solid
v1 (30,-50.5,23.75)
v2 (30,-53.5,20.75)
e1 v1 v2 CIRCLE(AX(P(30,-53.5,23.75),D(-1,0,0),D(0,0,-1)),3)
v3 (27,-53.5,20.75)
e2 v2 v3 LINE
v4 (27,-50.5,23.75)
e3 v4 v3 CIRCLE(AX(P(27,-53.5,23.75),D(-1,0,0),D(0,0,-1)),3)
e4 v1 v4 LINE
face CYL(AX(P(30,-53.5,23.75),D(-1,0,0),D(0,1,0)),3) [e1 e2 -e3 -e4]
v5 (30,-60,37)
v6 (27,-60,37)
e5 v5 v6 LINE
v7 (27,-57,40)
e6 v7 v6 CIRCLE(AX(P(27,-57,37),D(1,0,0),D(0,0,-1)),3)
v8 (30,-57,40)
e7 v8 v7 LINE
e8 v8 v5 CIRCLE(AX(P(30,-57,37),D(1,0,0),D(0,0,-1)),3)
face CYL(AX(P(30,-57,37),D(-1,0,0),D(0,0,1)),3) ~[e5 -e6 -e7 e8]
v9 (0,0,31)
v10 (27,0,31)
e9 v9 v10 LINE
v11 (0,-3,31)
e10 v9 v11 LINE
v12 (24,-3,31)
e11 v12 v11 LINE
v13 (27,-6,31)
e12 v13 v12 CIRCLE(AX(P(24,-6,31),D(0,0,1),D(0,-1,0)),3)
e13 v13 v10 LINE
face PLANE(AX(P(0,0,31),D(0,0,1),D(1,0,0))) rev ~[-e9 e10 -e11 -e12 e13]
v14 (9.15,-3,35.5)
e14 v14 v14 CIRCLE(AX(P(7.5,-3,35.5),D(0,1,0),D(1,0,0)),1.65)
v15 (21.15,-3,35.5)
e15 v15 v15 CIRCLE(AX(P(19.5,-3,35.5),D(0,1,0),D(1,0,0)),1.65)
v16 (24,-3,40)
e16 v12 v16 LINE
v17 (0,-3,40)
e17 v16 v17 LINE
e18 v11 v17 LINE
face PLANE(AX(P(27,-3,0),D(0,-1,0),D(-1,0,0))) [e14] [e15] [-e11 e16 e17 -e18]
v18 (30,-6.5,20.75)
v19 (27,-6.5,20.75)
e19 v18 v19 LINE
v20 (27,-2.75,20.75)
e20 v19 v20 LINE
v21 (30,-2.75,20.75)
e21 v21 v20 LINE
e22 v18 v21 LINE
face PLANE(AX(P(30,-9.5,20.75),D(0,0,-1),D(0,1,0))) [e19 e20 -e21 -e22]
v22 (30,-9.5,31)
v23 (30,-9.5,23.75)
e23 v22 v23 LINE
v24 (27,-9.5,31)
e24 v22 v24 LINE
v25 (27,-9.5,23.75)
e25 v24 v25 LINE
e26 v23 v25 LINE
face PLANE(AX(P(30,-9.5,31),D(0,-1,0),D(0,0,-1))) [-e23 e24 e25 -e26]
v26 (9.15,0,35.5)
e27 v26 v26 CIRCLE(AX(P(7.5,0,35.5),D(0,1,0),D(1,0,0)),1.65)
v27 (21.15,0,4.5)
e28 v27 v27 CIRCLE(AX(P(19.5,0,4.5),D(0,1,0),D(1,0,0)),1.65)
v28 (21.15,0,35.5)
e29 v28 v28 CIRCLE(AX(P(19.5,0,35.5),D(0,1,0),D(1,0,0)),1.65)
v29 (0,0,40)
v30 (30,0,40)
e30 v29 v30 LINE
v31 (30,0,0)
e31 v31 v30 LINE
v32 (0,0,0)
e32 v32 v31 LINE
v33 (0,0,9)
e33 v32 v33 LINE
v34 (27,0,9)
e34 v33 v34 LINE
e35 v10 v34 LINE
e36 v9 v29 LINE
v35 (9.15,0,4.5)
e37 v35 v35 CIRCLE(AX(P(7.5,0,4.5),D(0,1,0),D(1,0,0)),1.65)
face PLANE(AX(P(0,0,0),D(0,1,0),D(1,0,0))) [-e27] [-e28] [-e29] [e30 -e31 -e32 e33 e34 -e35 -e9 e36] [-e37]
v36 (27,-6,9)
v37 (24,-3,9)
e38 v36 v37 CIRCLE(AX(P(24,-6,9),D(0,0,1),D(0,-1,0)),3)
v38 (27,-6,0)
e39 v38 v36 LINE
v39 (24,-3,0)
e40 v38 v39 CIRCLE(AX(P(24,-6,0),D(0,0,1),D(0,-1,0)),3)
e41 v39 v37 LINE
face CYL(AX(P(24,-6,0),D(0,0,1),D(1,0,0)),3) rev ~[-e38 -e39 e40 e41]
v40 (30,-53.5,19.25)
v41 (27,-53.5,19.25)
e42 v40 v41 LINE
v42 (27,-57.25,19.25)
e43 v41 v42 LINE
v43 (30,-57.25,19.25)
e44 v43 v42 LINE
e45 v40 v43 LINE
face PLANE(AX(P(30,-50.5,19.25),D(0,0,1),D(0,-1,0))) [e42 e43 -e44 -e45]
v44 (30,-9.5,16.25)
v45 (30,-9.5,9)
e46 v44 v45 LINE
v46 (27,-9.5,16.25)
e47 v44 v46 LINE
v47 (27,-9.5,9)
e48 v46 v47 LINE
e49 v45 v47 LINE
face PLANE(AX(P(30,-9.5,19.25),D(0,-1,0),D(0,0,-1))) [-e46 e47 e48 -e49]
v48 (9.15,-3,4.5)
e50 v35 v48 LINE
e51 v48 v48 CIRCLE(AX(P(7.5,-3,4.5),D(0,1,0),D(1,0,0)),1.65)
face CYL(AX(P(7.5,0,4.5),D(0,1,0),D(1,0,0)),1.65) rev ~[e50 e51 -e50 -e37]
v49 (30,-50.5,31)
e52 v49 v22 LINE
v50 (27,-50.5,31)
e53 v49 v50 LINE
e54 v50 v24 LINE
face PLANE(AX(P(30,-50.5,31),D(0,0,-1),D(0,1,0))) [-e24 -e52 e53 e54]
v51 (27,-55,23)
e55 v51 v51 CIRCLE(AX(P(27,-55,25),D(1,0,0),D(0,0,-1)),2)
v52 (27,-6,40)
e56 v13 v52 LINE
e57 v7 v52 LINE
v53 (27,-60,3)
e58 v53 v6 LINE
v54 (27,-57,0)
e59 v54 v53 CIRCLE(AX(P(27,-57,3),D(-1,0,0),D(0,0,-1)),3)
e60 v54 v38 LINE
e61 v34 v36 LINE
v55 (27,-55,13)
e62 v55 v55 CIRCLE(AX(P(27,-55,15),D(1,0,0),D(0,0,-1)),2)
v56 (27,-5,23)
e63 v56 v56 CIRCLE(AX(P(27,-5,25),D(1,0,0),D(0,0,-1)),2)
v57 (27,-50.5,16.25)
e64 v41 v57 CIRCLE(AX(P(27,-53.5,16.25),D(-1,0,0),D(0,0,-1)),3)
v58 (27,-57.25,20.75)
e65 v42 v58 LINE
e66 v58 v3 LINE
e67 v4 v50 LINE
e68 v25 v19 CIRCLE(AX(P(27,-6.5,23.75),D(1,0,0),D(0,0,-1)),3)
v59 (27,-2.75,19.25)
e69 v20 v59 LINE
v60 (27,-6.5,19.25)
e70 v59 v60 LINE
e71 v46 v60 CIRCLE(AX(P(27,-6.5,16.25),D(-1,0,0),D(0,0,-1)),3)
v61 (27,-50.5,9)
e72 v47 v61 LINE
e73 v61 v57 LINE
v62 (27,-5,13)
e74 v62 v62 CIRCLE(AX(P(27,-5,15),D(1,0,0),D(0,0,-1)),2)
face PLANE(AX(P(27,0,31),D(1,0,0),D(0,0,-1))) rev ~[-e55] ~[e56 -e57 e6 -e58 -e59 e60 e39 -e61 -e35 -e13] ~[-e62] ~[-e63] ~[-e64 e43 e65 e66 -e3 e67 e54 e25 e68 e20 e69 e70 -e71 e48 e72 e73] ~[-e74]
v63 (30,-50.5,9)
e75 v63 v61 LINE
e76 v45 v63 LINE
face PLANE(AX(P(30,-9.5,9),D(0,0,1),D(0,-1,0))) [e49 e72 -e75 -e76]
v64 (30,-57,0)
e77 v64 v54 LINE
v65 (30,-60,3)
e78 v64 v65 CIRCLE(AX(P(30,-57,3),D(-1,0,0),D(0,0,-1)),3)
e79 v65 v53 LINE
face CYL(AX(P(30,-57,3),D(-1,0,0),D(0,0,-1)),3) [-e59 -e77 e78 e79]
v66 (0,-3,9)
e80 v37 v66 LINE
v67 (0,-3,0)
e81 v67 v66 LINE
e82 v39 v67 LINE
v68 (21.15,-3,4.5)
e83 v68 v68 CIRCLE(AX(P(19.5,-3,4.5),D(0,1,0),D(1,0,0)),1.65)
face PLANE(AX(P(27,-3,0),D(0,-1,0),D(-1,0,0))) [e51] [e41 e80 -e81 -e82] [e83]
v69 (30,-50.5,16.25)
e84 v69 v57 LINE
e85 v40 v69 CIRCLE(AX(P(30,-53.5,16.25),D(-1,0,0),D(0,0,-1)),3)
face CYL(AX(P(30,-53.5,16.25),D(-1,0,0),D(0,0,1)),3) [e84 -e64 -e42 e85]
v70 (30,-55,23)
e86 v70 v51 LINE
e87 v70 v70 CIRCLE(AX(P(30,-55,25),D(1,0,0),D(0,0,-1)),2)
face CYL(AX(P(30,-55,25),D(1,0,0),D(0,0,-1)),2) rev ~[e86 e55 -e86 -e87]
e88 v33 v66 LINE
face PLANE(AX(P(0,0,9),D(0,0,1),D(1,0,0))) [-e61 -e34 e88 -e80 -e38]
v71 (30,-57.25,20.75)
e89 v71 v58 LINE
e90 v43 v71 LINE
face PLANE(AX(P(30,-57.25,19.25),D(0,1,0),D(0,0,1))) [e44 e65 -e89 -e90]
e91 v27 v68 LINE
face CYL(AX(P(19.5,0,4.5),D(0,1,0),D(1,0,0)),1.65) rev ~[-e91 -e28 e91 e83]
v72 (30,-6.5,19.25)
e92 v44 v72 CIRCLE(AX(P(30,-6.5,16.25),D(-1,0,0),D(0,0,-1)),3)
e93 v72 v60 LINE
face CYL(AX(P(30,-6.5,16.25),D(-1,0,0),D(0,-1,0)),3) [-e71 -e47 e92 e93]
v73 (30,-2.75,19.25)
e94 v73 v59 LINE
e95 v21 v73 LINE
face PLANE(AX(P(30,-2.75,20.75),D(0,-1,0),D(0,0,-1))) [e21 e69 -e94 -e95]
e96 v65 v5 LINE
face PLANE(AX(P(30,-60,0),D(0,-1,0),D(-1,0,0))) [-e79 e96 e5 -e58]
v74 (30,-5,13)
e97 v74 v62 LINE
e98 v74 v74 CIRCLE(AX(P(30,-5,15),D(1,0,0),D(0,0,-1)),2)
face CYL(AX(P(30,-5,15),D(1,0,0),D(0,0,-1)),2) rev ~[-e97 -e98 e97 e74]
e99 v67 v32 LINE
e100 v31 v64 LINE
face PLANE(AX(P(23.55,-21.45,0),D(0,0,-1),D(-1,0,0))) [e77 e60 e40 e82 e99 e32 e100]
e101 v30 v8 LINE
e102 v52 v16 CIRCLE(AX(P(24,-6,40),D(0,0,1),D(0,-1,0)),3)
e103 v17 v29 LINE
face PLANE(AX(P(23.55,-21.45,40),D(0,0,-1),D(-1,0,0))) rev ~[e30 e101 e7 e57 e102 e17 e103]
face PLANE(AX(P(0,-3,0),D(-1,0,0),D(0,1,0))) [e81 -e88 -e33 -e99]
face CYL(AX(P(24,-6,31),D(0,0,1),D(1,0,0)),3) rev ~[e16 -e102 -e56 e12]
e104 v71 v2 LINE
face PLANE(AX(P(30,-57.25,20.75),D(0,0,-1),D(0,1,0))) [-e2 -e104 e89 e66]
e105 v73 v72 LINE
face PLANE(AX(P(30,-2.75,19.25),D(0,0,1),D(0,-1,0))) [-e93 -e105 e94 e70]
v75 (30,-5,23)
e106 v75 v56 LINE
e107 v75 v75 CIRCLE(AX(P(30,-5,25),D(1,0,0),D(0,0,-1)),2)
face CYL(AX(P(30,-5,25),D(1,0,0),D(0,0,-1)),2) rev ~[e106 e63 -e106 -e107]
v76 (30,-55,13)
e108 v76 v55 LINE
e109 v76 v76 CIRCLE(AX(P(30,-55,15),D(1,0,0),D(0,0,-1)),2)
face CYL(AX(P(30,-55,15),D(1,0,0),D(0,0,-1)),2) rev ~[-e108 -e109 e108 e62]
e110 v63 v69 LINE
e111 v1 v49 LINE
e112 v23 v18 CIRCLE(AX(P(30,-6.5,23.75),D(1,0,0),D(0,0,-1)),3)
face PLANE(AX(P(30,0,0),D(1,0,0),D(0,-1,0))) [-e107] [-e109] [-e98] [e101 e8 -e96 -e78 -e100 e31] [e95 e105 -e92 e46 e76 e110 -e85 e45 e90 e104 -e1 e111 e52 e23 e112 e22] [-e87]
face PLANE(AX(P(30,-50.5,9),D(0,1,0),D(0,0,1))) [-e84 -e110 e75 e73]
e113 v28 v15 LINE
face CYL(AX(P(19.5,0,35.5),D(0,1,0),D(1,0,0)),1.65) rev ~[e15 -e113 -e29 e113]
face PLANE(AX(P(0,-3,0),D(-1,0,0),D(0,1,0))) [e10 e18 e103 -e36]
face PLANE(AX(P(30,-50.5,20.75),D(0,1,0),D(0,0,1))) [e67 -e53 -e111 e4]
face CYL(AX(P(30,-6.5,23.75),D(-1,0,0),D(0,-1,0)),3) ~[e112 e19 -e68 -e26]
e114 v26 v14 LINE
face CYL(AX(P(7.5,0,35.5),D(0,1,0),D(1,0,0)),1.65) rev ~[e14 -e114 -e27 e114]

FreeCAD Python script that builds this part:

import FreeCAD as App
import Part
import Sketcher

V = App.Vector


def edges_at(feature, points):
    """Names of the edges that pass closest to the given points."""
    edges = feature.Shape.Edges
    near = lambda p: min(range(len(edges)), key=lambda i: edges[i].distToShape(Part.Vertex(*p))[0])
    return sorted({f"Edge{near(p) + 1}" for p in points})

doc = App.newDocument("Part")
body = doc.addObject("PartDesign::Body", "Body")

# Sketch on XY plane
sketch1 = body.newObject("Sketcher::SketchObject", "Sketch")
sketch1.AttachmentSupport = (doc.getObject("XY_Plane"), [""])
sketch1.MapMode = "FlatFace"
sketch1.addGeometry(Part.LineSegment(V(30, 0, 0), V(0, 0, 0)), False)
sketch1.addGeometry(Part.LineSegment(V(0, 0, 0), V(0, -3, 0)), False)
sketch1.addGeometry(Part.LineSegment(V(0, -3, 0), V(27, -3, 0)), False)
sketch1.addGeometry(Part.LineSegment(V(27, -3, 0), V(27, -60, 0)), False)
sketch1.addGeometry(Part.LineSegment(V(27, -60, 0), V(30, -60, 0)), False)
sketch1.addGeometry(Part.LineSegment(V(30, -60, 0), V(30, 0, 0)), False)
sketch1.addConstraint(Sketcher.Constraint("Coincident", 0, 2, 1, 1))
sketch1.addConstraint(Sketcher.Constraint("Coincident", 1, 2, 2, 1))
sketch1.addConstraint(Sketcher.Constraint("Coincident", 2, 2, 3, 1))
sketch1.addConstraint(Sketcher.Constraint("Coincident", 3, 2, 4, 1))
sketch1.addConstraint(Sketcher.Constraint("Coincident", 4, 2, 5, 1))
sketch1.addConstraint(Sketcher.Constraint("Coincident", 5, 2, 0, 1))
sketch1.addConstraint(Sketcher.Constraint("Horizontal", 0))
sketch1.addConstraint(Sketcher.Constraint("Vertical", 1))
sketch1.addConstraint(Sketcher.Constraint("Horizontal", 2))
sketch1.addConstraint(Sketcher.Constraint("Vertical", 3))
sketch1.addConstraint(Sketcher.Constraint("Horizontal", 4))
sketch1.addConstraint(Sketcher.Constraint("Vertical", 5))
sketch1.addConstraint(Sketcher.Constraint("Coincident", 0, 2, -1, 1))
sketch1.addConstraint(Sketcher.Constraint("Equal", 4, 1))
sketch1.addConstraint(Sketcher.Constraint("DistanceX", 0, 2, 0, 1, 30.0))
sketch1.addConstraint(Sketcher.Constraint("DistanceX", 2, 1, 2, 2, 27.0))
sketch1.addConstraint(Sketcher.Constraint("DistanceY", 3, 2, 3, 1, 57.0))
pad1 = body.newObject("PartDesign::Pad", "Pad")
pad1.Profile = sketch1
pad1.Length = 40

# Sketch on XZ plane
sketch2 = body.newObject("Sketcher::SketchObject", "Sketch001")
sketch2.AttachmentSupport = (doc.getObject("XZ_Plane"), [""])
sketch2.MapMode = "FlatFace"
sketch2.addGeometry(Part.Circle(V(7.5, 4.5, 0), V(0, 0, 1), 1.6), False)
sketch2.addGeometry(Part.Circle(V(19.5, 4.5, 0), V(0, 0, 1), 1.6), False)
sketch2.addGeometry(Part.Circle(V(19.5, 35.5, 0), V(0, 0, 1), 1.6), False)
sketch2.addGeometry(Part.Circle(V(7.5, 35.5, 0), V(0, 0, 1), 1.6), False)
sketch2.addGeometry(Part.LineSegment(V(0, 9, 0), V(0, 31, 0)), False)
sketch2.addGeometry(Part.LineSegment(V(0, 31, 0), V(27, 31, 0)), False)
sketch2.addGeometry(Part.LineSegment(V(27, 31, 0), V(27, 9, 0)), False)
sketch2.addGeometry(Part.LineSegment(V(27, 9, 0), V(0, 9, 0)), False)
sketch2.addConstraint(Sketcher.Constraint("Coincident", 4, 2, 5, 1))
sketch2.addConstraint(Sketcher.Constraint("Coincident", 5, 2, 6, 1))
sketch2.addConstraint(Sketcher.Constraint("Coincident", 6, 2, 7, 1))
sketch2.addConstraint(Sketcher.Constraint("Coincident", 7, 2, 4, 1))
sketch2.addConstraint(Sketcher.Constraint("Vertical", 4))
sketch2.addConstraint(Sketcher.Constraint("Horizontal", 5))
sketch2.addConstraint(Sketcher.Constraint("Vertical", 6))
sketch2.addConstraint(Sketcher.Constraint("Horizontal", 7))
sketch2.addConstraint(Sketcher.Constraint("Equal", 0, 1))
sketch2.addConstraint(Sketcher.Constraint("Equal", 1, 2))
sketch2.addConstraint(Sketcher.Constraint("Equal", 2, 3))
sketch2.addConstraint(Sketcher.Constraint("PointOnObject", 4, 2, -2))
sketch2.addConstraint(Sketcher.Constraint("Horizontal", 0, 3, 1, 3))
sketch2.addConstraint(Sketcher.Constraint("Horizontal", 2, 3, 3, 3))
sketch2.addConstraint(Sketcher.Constraint("Vertical", 1, 3, 2, 3))
sketch2.addConstraint(Sketcher.Constraint("Vertical", 0, 3, 3, 3))
sketch2.addConstraint(Sketcher.Constraint("Diameter", 0, 3.3))
sketch2.addConstraint(Sketcher.Constraint("DistanceX", 5, 1, 5, 2, 27.0))
sketch2.addConstraint(Sketcher.Constraint("DistanceY", 4, 1, 4, 2, 22.0))
sketch2.addConstraint(Sketcher.Constraint("DistanceY", -1, 1, 4, 2, 31.0))
sketch2.addConstraint(Sketcher.Constraint("DistanceX", 0, 3, 1, 3, 12.0))
sketch2.addConstraint(Sketcher.Constraint("DistanceY", 1, 3, 2, 3, 31.0))
sketch2.addConstraint(Sketcher.Constraint("DistanceX", -1, 1, 0, 3, 7.5))
sketch2.addConstraint(Sketcher.Constraint("DistanceY", -1, 1, 0, 3, 4.5))
pocket1 = body.newObject("PartDesign::Pocket", "Pocket")
pocket1.Profile = sketch2
pocket1.Length = 10
pocket1.Reversed = True

# Sketch on YZ plane
sketch3 = body.newObject("Sketcher::SketchObject", "Sketch002")
sketch3.AttachmentSupport = (doc.getObject("YZ_Plane"), [""])
sketch3.MapMode = "FlatFace"
sketch3.AttachmentOffset = App.Placement(V(0, 0, 30), App.Rotation())
sketch3.addGeometry(Part.Circle(V(-5, 25, 0), V(0, 0, 1), 2), False)
sketch3.addGeometry(Part.Circle(V(-5, 15, 0), V(0, 0, 1), 2), False)
sketch3.addGeometry(Part.Circle(V(-55, 15, 0), V(0, 0, 1), 2), False)
sketch3.addGeometry(Part.Circle(V(-55, 25, 0), V(0, 0, 1), 2), False)
sketch3.addGeometry(Part.LineSegment(V(-2.8, 20.8, 0), V(-9.5, 20.8, 0)), False)
sketch3.addGeometry(Part.LineSegment(V(-9.5, 20.8, 0), V(-9.5, 31, 0)), False)
sketch3.addGeometry(Part.LineSegment(V(-9.5, 31, 0), V(-50.5, 31, 0)), False)
sketch3.addGeometry(Part.LineSegment(V(-50.5, 31, 0), V(-50.5, 20.8, 0)), False)
sketch3.addGeometry(Part.LineSegment(V(-50.5, 20.8, 0), V(-57.2, 20.8, 0)), False)
sketch3.addGeometry(Part.LineSegment(V(-57.2, 20.8, 0), V(-57.2, 19.2, 0)), False)
sketch3.addGeometry(Part.LineSegment(V(-57.2, 19.2, 0), V(-50.5, 19.2, 0)), False)
sketch3.addGeometry(Part.LineSegment(V(-50.5, 19.2, 0), V(-50.5, 9, 0)), False)
sketch3.addGeometry(Part.LineSegment(V(-50.5, 9, 0), V(-9.5, 9, 0)), False)
sketch3.addGeometry(Part.LineSegment(V(-9.5, 9, 0), V(-9.5, 19.2, 0)), False)
sketch3.addGeometry(Part.LineSegment(V(-9.5, 19.2, 0), V(-2.8, 19.2, 0)), False)
sketch3.addGeometry(Part.LineSegment(V(-2.8, 19.2, 0), V(-2.8, 20.8, 0)), False)
sketch3.addConstraint(Sketcher.Constraint("Coincident", 4, 2, 5, 1))
sketch3.addConstraint(Sketcher.Constraint("Coincident", 5, 2, 6, 1))
sketch3.addConstraint(Sketcher.Constraint("Coincident", 6, 2, 7, 1))
sketch3.addConstraint(Sketcher.Constraint("Coincident", 7, 2, 8, 1))
sketch3.addConstraint(Sketcher.Constraint("Coincident", 8, 2, 9, 1))
sketch3.addConstraint(Sketcher.Constraint("Coincident", 9, 2, 10, 1))
sketch3.addConstraint(Sketcher.Constraint("Coincident", 10, 2, 11, 1))
sketch3.addConstraint(Sketcher.Constraint("Coincident", 11, 2, 12, 1))
sketch3.addConstraint(Sketcher.Constraint("Coincident", 12, 2, 13, 1))
sketch3.addConstraint(Sketcher.Constraint("Coincident", 13, 2, 14, 1))
sketch3.addConstraint(Sketcher.Constraint("Coincident", 14, 2, 15, 1))
sketch3.addConstraint(Sketcher.Constraint("Coincident", 15, 2, 4, 1))
sketch3.addConstraint(Sketcher.Constraint("Horizontal", 4))
sketch3.addConstraint(Sketcher.Constraint("Vertical", 5))
sketch3.addConstraint(Sketcher.Constraint("Horizontal", 6))
sketch3.addConstraint(Sketcher.Constraint("Vertical", 7))
sketch3.addConstraint(Sketcher.Constraint("Horizontal", 8))
sketch3.addConstraint(Sketcher.Constraint("Vertical", 9))
sketch3.addConstraint(Sketcher.Constraint("Horizontal", 10))
sketch3.addConstraint(Sketcher.Constraint("Vertical", 11))
sketch3.addConstraint(Sketcher.Constraint("Horizontal", 12))
sketch3.addConstraint(Sketcher.Constraint("Vertical", 13))
sketch3.addConstraint(Sketcher.Constraint("Horizontal", 14))
sketch3.addConstraint(Sketcher.Constraint("Vertical", 15))
sketch3.addConstraint(Sketcher.Constraint("Equal", 0, 1))
sketch3.addConstraint(Sketcher.Constraint("Equal", 1, 2))
sketch3.addConstraint(Sketcher.Constraint("Equal", 2, 3))
sketch3.addConstraint(Sketcher.Constraint("Horizontal", 1, 3, 2, 3))
sketch3.addConstraint(Sketcher.Constraint("Horizontal", 0, 3, 3, 3))
sketch3.addConstraint(Sketcher.Constraint("Horizontal", 4, 2, 7, 2))
sketch3.addConstraint(Sketcher.Constraint("Horizontal", 10, 2, 13, 2))
sketch3.addConstraint(Sketcher.Constraint("Vertical", 0, 3, 1, 3))
sketch3.addConstraint(Sketcher.Constraint("Vertical", 2, 3, 3, 3))
sketch3.addConstraint(Sketcher.Constraint("Vertical", 7, 2, 10, 2))
sketch3.addConstraint(Sketcher.Constraint("Vertical", 5, 2, 12, 2))
sketch3.addConstraint(Sketcher.Constraint("Equal", 4, 8))
sketch3.addConstraint(Sketcher.Constraint("Equal", 7, 11))
sketch3.addConstraint(Sketcher.Constraint("Diameter", 0, 4.0))
sketch3.addConstraint(Sketcher.Constraint("DistanceX", 6, 2, 6, 1, 41.0))
sketch3.addConstraint(Sketcher.Constraint("DistanceY", 9, 2, 9, 1, 1.5))
sketch3.addConstraint(Sketcher.Constraint("DistanceX", 0, 3, -1, 1, 5.0))
sketch3.addConstraint(Sketcher.Constraint("DistanceY", -1, 1, 0, 3, 25.0))
sketch3.addConstraint(Sketcher.Constraint("DistanceY", -1, 1, 1, 3, 15.0))
sketch3.addConstraint(Sketcher.Constraint("DistanceX", 2, 3, -1, 1, 55.0))
sketch3.addConstraint(Sketcher.Constraint("DistanceY", -1, 1, 5, 2, 31.0))
sketch3.addConstraint(Sketcher.Constraint("DistanceY", -1, 1, 11, 2, 9.0))
sketch3.addConstraint(Sketcher.Constraint("DistanceX", 4, 2, 4, 1, 6.75))
sketch3.addConstraint(Sketcher.Constraint("DistanceX", 4, 2, -1, 1, 9.5))
pocket2 = body.newObject("PartDesign::Pocket", "Pocket001")
pocket2.Profile = sketch3
pocket2.Length = 10
doc.recompute()

fillet = body.newObject("PartDesign::Fillet", "Fillet")
fillet.Base = (pocket2, edges_at(pocket2, [
    (27, -3, 35.5),
    (28.5, -60, 40),
    (27, -3, 4.5),
    (28.5, -60, 0),
    (28.5, -9.5, 19.25),
    (28.5, -50.5, 19.25),
    (28.5, -50.5, 20.75),
    (28.5, -9.5, 20.75),
]))
fillet.Radius = 3

doc.recompute()
